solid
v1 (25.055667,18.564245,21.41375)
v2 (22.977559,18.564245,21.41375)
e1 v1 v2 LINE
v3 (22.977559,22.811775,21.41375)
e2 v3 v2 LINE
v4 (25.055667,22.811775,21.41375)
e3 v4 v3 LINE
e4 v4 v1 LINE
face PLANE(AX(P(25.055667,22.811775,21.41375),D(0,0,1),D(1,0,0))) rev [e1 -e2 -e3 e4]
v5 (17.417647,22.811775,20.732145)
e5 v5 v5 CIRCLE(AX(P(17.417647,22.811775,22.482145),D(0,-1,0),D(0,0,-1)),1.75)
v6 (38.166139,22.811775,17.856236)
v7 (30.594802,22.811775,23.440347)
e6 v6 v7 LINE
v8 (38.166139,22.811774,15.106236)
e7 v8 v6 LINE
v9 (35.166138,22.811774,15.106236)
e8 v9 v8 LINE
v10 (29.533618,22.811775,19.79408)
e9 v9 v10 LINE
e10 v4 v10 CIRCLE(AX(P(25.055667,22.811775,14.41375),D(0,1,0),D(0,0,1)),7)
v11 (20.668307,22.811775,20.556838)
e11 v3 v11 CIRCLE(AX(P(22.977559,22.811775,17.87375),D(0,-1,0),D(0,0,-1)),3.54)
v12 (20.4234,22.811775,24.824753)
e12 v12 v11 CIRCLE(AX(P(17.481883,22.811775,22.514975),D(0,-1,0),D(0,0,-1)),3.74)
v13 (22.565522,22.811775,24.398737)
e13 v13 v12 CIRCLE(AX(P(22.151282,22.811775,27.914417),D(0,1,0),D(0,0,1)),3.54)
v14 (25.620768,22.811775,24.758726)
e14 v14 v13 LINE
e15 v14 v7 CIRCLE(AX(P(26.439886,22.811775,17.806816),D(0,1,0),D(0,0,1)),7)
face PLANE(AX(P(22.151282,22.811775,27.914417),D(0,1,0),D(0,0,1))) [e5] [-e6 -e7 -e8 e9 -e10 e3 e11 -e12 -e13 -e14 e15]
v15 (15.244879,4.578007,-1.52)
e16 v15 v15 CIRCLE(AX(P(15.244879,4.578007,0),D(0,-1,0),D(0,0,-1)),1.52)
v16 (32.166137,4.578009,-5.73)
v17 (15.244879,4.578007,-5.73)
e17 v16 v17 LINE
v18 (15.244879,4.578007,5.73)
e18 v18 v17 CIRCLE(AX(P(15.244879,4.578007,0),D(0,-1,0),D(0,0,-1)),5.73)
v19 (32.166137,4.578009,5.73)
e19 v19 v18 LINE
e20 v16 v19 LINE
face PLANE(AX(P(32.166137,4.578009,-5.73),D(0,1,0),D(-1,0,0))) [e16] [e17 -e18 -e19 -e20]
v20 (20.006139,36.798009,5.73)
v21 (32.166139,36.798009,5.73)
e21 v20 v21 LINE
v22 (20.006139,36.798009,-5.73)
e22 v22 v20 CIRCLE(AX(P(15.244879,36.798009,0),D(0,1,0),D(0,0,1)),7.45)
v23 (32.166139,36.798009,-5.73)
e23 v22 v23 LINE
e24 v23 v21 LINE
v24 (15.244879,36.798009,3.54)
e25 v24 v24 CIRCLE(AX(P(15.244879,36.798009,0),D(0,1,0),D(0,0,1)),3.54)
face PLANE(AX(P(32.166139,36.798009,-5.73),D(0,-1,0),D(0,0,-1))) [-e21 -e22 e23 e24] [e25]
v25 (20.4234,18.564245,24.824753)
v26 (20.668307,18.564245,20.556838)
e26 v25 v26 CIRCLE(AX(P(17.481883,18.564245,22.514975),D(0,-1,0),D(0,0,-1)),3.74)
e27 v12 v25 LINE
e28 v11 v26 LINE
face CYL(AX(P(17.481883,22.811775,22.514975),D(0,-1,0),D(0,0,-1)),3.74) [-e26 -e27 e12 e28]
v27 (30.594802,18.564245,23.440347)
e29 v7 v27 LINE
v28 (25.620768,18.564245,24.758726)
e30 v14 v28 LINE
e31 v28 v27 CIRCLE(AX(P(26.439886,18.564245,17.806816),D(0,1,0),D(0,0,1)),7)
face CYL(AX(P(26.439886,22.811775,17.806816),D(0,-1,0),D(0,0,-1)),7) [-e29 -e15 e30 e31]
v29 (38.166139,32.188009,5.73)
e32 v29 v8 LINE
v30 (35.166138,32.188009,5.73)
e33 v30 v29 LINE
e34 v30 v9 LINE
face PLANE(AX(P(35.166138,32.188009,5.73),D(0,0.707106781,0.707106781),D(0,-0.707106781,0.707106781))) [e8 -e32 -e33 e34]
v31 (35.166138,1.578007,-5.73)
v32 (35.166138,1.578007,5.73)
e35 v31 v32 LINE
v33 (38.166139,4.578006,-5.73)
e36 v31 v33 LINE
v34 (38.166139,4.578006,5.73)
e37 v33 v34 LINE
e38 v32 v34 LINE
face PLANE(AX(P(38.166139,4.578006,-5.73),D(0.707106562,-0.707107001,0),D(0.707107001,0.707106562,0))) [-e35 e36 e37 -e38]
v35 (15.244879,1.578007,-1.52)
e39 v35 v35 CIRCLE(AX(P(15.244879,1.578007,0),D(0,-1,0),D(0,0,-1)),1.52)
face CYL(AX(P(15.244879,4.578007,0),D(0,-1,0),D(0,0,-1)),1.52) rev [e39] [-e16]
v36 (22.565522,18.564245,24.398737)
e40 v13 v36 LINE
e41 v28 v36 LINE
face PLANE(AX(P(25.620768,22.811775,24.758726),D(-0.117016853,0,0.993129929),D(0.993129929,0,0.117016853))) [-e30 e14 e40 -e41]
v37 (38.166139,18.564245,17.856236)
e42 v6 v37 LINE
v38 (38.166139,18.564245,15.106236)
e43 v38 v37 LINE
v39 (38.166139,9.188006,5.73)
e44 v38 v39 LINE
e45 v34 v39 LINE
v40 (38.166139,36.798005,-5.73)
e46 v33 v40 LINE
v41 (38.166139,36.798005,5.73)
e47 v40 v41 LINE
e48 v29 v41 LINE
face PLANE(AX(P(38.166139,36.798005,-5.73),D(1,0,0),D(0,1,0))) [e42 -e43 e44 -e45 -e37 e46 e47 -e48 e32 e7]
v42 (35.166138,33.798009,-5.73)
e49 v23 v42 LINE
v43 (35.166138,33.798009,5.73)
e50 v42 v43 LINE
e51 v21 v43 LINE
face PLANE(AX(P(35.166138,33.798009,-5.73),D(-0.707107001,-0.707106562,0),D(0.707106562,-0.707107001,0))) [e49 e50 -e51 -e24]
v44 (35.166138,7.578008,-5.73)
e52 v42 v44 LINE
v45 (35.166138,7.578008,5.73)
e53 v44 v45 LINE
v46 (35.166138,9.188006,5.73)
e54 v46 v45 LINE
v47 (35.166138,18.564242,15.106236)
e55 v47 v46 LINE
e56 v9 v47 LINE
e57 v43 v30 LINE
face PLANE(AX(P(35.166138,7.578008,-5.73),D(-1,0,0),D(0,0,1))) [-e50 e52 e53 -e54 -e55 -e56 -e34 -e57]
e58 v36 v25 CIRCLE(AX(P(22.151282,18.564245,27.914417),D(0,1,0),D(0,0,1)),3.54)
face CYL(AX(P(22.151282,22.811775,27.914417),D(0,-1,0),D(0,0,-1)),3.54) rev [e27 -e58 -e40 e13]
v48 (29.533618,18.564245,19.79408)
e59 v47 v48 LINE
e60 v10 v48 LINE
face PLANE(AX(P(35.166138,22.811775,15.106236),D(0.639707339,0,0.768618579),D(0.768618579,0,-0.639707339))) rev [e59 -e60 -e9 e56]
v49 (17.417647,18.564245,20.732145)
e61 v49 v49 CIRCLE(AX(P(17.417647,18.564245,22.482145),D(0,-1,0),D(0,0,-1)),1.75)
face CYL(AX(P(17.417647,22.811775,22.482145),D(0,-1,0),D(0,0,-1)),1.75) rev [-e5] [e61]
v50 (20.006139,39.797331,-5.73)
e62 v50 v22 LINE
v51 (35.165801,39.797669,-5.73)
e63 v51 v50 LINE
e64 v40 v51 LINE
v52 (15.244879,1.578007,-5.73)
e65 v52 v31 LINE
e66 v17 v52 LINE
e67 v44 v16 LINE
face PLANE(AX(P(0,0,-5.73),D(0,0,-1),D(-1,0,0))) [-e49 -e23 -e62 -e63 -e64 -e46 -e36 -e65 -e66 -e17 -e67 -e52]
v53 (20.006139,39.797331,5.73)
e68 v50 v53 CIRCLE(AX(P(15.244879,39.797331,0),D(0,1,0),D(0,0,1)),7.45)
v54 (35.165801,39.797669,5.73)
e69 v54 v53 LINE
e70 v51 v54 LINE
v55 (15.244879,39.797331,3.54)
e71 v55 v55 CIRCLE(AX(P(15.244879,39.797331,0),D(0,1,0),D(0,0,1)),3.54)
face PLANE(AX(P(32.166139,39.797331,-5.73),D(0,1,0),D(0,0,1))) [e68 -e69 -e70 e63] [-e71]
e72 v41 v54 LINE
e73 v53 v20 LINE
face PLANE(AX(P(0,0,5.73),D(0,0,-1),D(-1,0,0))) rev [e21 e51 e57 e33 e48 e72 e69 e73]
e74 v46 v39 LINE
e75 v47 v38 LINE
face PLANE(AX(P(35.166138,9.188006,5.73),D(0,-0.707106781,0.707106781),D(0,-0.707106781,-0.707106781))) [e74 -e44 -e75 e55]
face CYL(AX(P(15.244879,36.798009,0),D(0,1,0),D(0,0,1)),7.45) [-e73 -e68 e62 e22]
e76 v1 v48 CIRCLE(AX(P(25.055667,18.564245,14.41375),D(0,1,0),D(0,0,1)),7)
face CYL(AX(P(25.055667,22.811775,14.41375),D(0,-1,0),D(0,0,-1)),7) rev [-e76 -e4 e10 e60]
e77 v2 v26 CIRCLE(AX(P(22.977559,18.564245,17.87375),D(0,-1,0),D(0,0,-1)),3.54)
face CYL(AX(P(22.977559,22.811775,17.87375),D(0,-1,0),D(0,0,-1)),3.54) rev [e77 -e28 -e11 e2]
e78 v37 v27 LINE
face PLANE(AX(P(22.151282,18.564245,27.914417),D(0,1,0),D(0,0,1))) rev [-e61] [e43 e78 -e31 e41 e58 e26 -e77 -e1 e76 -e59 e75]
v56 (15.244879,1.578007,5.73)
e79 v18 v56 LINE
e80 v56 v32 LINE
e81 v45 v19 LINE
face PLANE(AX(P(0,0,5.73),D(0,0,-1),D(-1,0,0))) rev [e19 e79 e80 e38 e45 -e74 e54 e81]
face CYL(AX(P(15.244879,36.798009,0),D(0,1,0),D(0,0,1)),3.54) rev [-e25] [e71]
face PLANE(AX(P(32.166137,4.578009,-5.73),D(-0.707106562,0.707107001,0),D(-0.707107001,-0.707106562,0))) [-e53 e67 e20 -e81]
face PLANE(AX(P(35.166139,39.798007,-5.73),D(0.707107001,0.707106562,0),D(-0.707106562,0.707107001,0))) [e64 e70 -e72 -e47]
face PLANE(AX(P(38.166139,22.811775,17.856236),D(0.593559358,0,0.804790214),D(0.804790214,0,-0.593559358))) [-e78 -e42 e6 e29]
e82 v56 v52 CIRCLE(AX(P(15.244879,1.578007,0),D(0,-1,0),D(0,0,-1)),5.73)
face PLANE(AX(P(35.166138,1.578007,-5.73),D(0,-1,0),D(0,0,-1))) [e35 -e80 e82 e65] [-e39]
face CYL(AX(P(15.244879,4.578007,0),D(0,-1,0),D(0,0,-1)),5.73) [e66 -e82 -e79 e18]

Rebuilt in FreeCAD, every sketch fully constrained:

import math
import FreeCAD as App
import Part
import Sketcher

V = App.Vector
Q = App.Units.Quantity


def add_polygon(sketch, points):
    """Adds a closed chain of lines whose ends are joined by coincident constraints."""
    first, n = sketch.GeometryCount, len(points)
    for a, b in zip(points, points[1:] + points[:1]):
        sketch.addGeometry(Part.LineSegment(App.Vector(*a, 0), App.Vector(*b, 0)), False)
    for i in range(n):
        sketch.addConstraint(Sketcher.Constraint("Coincident", first + i, 2, first + (i + 1) % n, 1))

doc = App.newDocument("Part")
params = doc.addObject("Spreadsheet::Sheet", "Params")
for row, (alias, value) in enumerate([
    ("sketch1_height", "26.220001 mm"),
    ("pad1_length", "5.73 mm"),
    ("pad1_length2", "5.73 mm"),
    ("sketch2_width", "12.16 mm"),
    ("pad2_length", "11.46 mm"),
    ("sketch3_width", "12.16 mm"),
    ("pad3_length", "11.46 mm"),
    ("sketch4_radius", "7.45 mm"),
    ("sketch4_height", "11.46 mm"),
    ("pad4_length", "2.999321 mm"),
    ("sketch5_diameter", "7.08 mm"),
    ("pocket1_length", "2.999322 mm"),
    ("sketch6_radius", "5.73 mm"),
    ("pad5_length", "3 mm"),
    ("sketch7_diameter", "3.04 mm"),
    ("pocket2_length", "3 mm"),
    ("sketch8_length", "13.26 mm"),
    ("pad6_length", "3.000001 mm"),
    ("sketch9_radius", "7 mm"),
    ("sketch9_width", "3.000001 mm"),
    ("sketch9_radius2", "3.54 mm"),
    ("sketch9_radius3", "3.74 mm"),
    ("sketch9_height", "2.75 mm"),
    ("pad7_length", "4.24753 mm"),
    ("sketch10_diameter", "3.5 mm"),
    ("pocket3_length", "4.24753 mm"),
], start=1):
    params.set(f"A{row}", alias)
    params.set(f"B{row}", "=" + value)
    params.setAlias(f"B{row}", alias)

body = doc.addObject("PartDesign::Body", "Body")

sketch1 = body.newObject("Sketcher::SketchObject", "Sketch")
sketch1.AttachmentSupport = (doc.getObject("XY_Plane"), [""])
sketch1.MapMode = "FlatFace"
add_polygon(sketch1, [(35.2, 39.8), (32.2, 36.8), (35.2, 33.8), (35.2, 7.6), (32.2, 4.6), (35.2, 1.6), (38.2, 4.6), (38.2, 36.8)])
sketch1.addConstraint(Sketcher.Constraint("Vertical", 2))
sketch1.addConstraint(Sketcher.Constraint("Vertical", 6))
sketch1.addConstraint(Sketcher.Constraint("Perpendicular", 0, 1))
sketch1.addConstraint(Sketcher.Constraint("Perpendicular", 1, 3))
sketch1.addConstraint(Sketcher.Constraint("Perpendicular", 3, 4))
sketch1.addConstraint(Sketcher.Constraint("Perpendicular", 4, 5))
sketch1.addConstraint(Sketcher.Constraint("Perpendicular", 5, 7))
sketch1.addConstraint(Sketcher.Constraint("Vertical", 0, 2, 3, 2))
sketch1.addConstraint(Sketcher.Constraint("Vertical", 2, 2, 4, 2))
sketch1.addConstraint(Sketcher.Constraint("Vertical", 4, 2, 7, 2))
sketch1.addConstraint(Sketcher.Constraint("Equal", 0, 1))
sketch1.addConstraint(Sketcher.Constraint("Equal", 4, 5))
sketch1.addConstraint(Sketcher.Constraint("DistanceX", 0, 2, 1, 2, Q("2.999999 mm")))
sketch1.addConstraint(Sketcher.Constraint("DistanceY", 2, 2, 2, 1, Q("26.220001 mm")))
sketch1.addConstraint(Sketcher.Constraint("DistanceX", -1, 1, 0, 2, Q("32.166139 mm")))
sketch1.addConstraint(Sketcher.Constraint("DistanceY", -1, 1, 0, 2, Q("36.798009 mm")))
sketch1.setExpression("Constraints[21]", "Params.sketch1_height")
pad1 = body.newObject("PartDesign::Pad", "Pad")
pad1.Profile = sketch1
pad1.Type = "TwoLengths"
pad1.setExpression("Length", "Params.pad1_length")
pad1.setExpression("Length2", "Params.pad1_length2")

sketch2 = body.newObject("Sketcher::SketchObject", "Sketch001")
sketch2.AttachmentSupport = (doc.getObject("XY_Plane"), [""])
sketch2.MapMode = "FlatFace"
sketch2.AttachmentOffset = App.Placement(V(0, 0, 5.73), App.Rotation())
add_polygon(sketch2, [(20, 36.8), (32.2, 36.8), (35.2, 39.8), (20, 39.8)])
sketch2.addConstraint(Sketcher.Constraint("Horizontal", 0))
sketch2.addConstraint(Sketcher.Constraint("Horizontal", 2))
sketch2.addConstraint(Sketcher.Constraint("Vertical", 3))
sketch2.addConstraint(Sketcher.Constraint("Angle", 1, Q("44.999982 deg")))
sketch2.addConstraint(Sketcher.Constraint("DistanceX", 0, 1, 0, 2, Q("12.16 mm")))
sketch2.addConstraint(Sketcher.Constraint("DistanceY", 3, 2, 3, 1, Q("2.999322 mm")))
sketch2.addConstraint(Sketcher.Constraint("DistanceX", -1, 1, 0, 2, Q("32.166139 mm")))
sketch2.addConstraint(Sketcher.Constraint("DistanceY", -1, 1, 0, 2, Q("36.798009 mm")))
sketch2.setExpression("Constraints[8]", "Params.sketch2_width")
pad2 = body.newObject("PartDesign::Pad", "Pad001")
pad2.Profile = sketch2
pad2.setExpression("Length", "Params.pad2_length")
pad2.Reversed = True

sketch3 = body.newObject("Sketcher::SketchObject", "Sketch002")
sketch3.AttachmentSupport = (doc.getObject("XY_Plane"), [""])
sketch3.MapMode = "FlatFace"
sketch3.AttachmentOffset = App.Placement(V(0, 0, 5.73), App.Rotation())
add_polygon(sketch3, [(35.2, 1.6), (32.2, 4.6), (20, 4.6), (20, 1.6)])
sketch3.addConstraint(Sketcher.Constraint("Horizontal", 1))
sketch3.addConstraint(Sketcher.Constraint("Vertical", 2))
sketch3.addConstraint(Sketcher.Constraint("Horizontal", 3))
sketch3.addConstraint(Sketcher.Constraint("Angle", 0, Q("134.999982 deg")))
sketch3.addConstraint(Sketcher.Constraint("DistanceX", 0, 2, 3, 2, Q("3 mm")))
sketch3.addConstraint(Sketcher.Constraint("DistanceX", 1, 2, 1, 1, Q("12.16 mm")))
sketch3.addConstraint(Sketcher.Constraint("DistanceY", -1, 1, 0, 2, Q("4.578009 mm")))
sketch3.addConstraint(Sketcher.Constraint("DistanceX", -1, 1, 0, 2, Q("32.166137 mm")))
sketch3.setExpression("Constraints[9]", "Params.sketch3_width")
pad3 = body.newObject("PartDesign::Pad", "Pad002")
pad3.Profile = sketch3
pad3.setExpression("Length", "Params.pad3_length")
pad3.Reversed = True

sketch4 = body.newObject("Sketcher::SketchObject", "Sketch003")
sketch4.AttachmentSupport = (doc.getObject("XZ_Plane"), [""])
sketch4.MapMode = "FlatFace"
sketch4.AttachmentOffset = App.Placement(V(0, 0, -39.797331), App.Rotation())
sketch4.addGeometry(Part.LineSegment(V(20, 6, 0), V(20, -6, 0)), False)
sketch4.addGeometry(Part.ArcOfCircle(Part.Circle(V(15, 0, 0), V(0, 0, 1), 7), math.radians(50), math.radians(310)), False)
sketch4.addConstraint(Sketcher.Constraint("Coincident", 0, 1, 1, 1))
sketch4.addConstraint(Sketcher.Constraint("Coincident", 1, 2, 0, 2))
sketch4.addConstraint(Sketcher.Constraint("Vertical", 0))
sketch4.addConstraint(Sketcher.Constraint("PointOnObject", 1, 3, -1))
sketch4.addConstraint(Sketcher.Constraint("Radius", 1, Q("7.45 mm")))
sketch4.addConstraint(Sketcher.Constraint("DistanceY", 0, 2, 0, 1, Q("11.46 mm")))
sketch4.addConstraint(Sketcher.Constraint("DistanceX", -1, 1, 1, 3, Q("15.244879 mm")))
sketch4.setExpression("Constraints[4]", "Params.sketch4_radius")
sketch4.setExpression("Constraints[5]", "Params.sketch4_height")
pad4 = body.newObject("PartDesign::Pad", "Pad003")
pad4.Profile = sketch4
pad4.setExpression("Length", "Params.pad4_length")

sketch5 = body.newObject("Sketcher::SketchObject", "Sketch004")
sketch5.AttachmentSupport = (doc.getObject("XZ_Plane"), [""])
sketch5.MapMode = "FlatFace"
sketch5.AttachmentOffset = App.Placement(V(0, 0, -39.797331), App.Rotation())
sketch5.addGeometry(Part.Circle(V(15.2, 0, 0), V(0, 0, 1), 3.5), False)
sketch5.addConstraint(Sketcher.Constraint("PointOnObject", 0, 3, -1))
sketch5.addConstraint(Sketcher.Constraint("Diameter", 0, Q("7.08 mm")))
sketch5.addConstraint(Sketcher.Constraint("DistanceX", -1, 1, 0, 3, Q("15.244879 mm")))
sketch5.setExpression("Constraints[1]", "Params.sketch5_diameter")
pocket1 = body.newObject("PartDesign::Pocket", "Pocket")
pocket1.Profile = sketch5
pocket1.setExpression("Length", "Params.pocket1_length")
pocket1.Reversed = True

sketch6 = body.newObject("Sketcher::SketchObject", "Sketch005")
sketch6.AttachmentSupport = (doc.getObject("XZ_Plane"), [""])
sketch6.MapMode = "FlatFace"
sketch6.AttachmentOffset = App.Placement(V(0, 0, -1.578007), App.Rotation())
sketch6.addGeometry(Part.LineSegment(V(20, 5.7, 0), V(15.2, 5.7, 0)), False)
sketch6.addGeometry(Part.ArcOfCircle(Part.Circle(V(15.2, 0, 0), V(0, 0, 1), 5.7), math.radians(90), math.radians(270)), False)
sketch6.addGeometry(Part.LineSegment(V(15.2, -5.7, 0), V(20, -5.7, 0)), False)
sketch6.addGeometry(Part.LineSegment(V(20, -5.7, 0), V(20, 5.7, 0)), False)
sketch6.addConstraint(Sketcher.Constraint("Tangent", 0, 2, 1, 1))
sketch6.addConstraint(Sketcher.Constraint("Tangent", 1, 2, 2, 1))
sketch6.addConstraint(Sketcher.Constraint("Coincident", 2, 2, 3, 1))
sketch6.addConstraint(Sketcher.Constraint("Coincident", 3, 2, 0, 1))
sketch6.addConstraint(Sketcher.Constraint("Horizontal", 0))
sketch6.addConstraint(Sketcher.Constraint("Horizontal", 2))
sketch6.addConstraint(Sketcher.Constraint("Vertical", 3))
sketch6.addConstraint(Sketcher.Constraint("PointOnObject", 1, 3, -1))
sketch6.addConstraint(Sketcher.Constraint("Radius", 1, Q("5.73 mm")))
sketch6.addConstraint(Sketcher.Constraint("DistanceX", 0, 2, 0, 1, Q("4.76126 mm")))
sketch6.addConstraint(Sketcher.Constraint("DistanceX", -1, 1, 1, 3, Q("15.244879 mm")))
sketch6.setExpression("Constraints[8]", "Params.sketch6_radius")
pad5 = body.newObject("PartDesign::Pad", "Pad004")
pad5.Profile = sketch6
pad5.setExpression("Length", "Params.pad5_length")
pad5.Reversed = True

sketch7 = body.newObject("Sketcher::SketchObject", "Sketch006")
sketch7.AttachmentSupport = (doc.getObject("XZ_Plane"), [""])
sketch7.MapMode = "FlatFace"
sketch7.AttachmentOffset = App.Placement(V(0, 0, -1.578007), App.Rotation())
sketch7.addGeometry(Part.Circle(V(15.2, 0, 0), V(0, 0, 1), 1.5), False)
sketch7.addConstraint(Sketcher.Constraint("PointOnObject", 0, 3, -1))
sketch7.addConstraint(Sketcher.Constraint("Diameter", 0, Q("3.04 mm")))
sketch7.addConstraint(Sketcher.Constraint("DistanceX", -1, 1, 0, 3, Q("15.244879 mm")))
sketch7.setExpression("Constraints[1]", "Params.sketch7_diameter")
pocket2 = body.newObject("PartDesign::Pocket", "Pocket001")
pocket2.Profile = sketch7
pocket2.setExpression("Length", "Params.pocket2_length")

sketch8 = body.newObject("Sketcher::SketchObject", "Sketch007")
sketch8.AttachmentSupport = (doc.getObject("YZ_Plane"), [""])
sketch8.MapMode = "FlatFace"
sketch8.AttachmentOffset = App.Placement(V(0, 0, 38.166139), App.Rotation())
add_polygon(sketch8, [(9.2, 5.7), (32.2, 5.7), (22.8, 15.1), (18.6, 15.1)])
sketch8.addConstraint(Sketcher.Constraint("Horizontal", 0))
sketch8.addConstraint(Sketcher.Constraint("Horizontal", 2))
sketch8.addConstraint(Sketcher.Constraint("Perpendicular", 1, 3))
sketch8.addConstraint(Sketcher.Constraint("Equal", 1, 3))
sketch8.addConstraint(Sketcher.Constraint("Distance", 1, Q("13.26 mm")))
sketch8.addConstraint(Sketcher.Constraint("DistanceY", -1, 1, 0, 2, Q("5.73 mm")))
sketch8.addConstraint(Sketcher.Constraint("DistanceX", 2, 2, 2, 1, Q("4.247531 mm")))
sketch8.addConstraint(Sketcher.Constraint("DistanceX", -1, 1, 0, 2, Q("32.188009 mm")))
sketch8.setExpression("Constraints[8]", "Params.sketch8_length")
pad6 = body.newObject("PartDesign::Pad", "Pad005")
pad6.Profile = sketch8
pad6.setExpression("Length", "Params.pad6_length")
pad6.Reversed = True

sketch9 = body.newObject("Sketcher::SketchObject", "Sketch008")
sketch9.AttachmentSupport = (doc.getObject("XZ_Plane"), [""])
sketch9.MapMode = "FlatFace"
sketch9.AttachmentOffset = App.Placement(V(0, 0, -18.564245), App.Rotation())
sketch9.addGeometry(Part.LineSegment(V(38.2, 15.1, 0), V(38.2, 17.9, 0)), False)
sketch9.addGeometry(Part.LineSegment(V(38.2, 17.9, 0), V(30.6, 23.4, 0)), False)
sketch9.addGeometry(Part.ArcOfCircle(Part.Circle(V(26.4, 17.8, 0), V(0, 0, 1), 7), math.radians(54), math.radians(97)), False)
sketch9.addGeometry(Part.LineSegment(V(25.6, 24.8, 0), V(22.6, 24.4, 0)), False)
sketch9.addGeometry(Part.ArcOfCircle(Part.Circle(V(22.2, 27.9, 0), V(0, 0, 1), 3.5), math.radians(-119), math.radians(-83)), False)
sketch9.addGeometry(Part.ArcOfCircle(Part.Circle(V(17.5, 22.5, 0), V(0, 0, 1), 3.7), math.radians(38), math.radians(328)), False)
sketch9.addGeometry(Part.ArcOfCircle(Part.Circle(V(23, 17.9, 0), V(0, 0, 1), 3.5), math.radians(90), math.radians(131)), False)
sketch9.addGeometry(Part.LineSegment(V(23, 21.4, 0), V(25.1, 21.4, 0)), False)
sketch9.addGeometry(Part.ArcOfCircle(Part.Circle(V(25.1, 14.4, 0), V(0, 0, 1), 7), math.radians(50), math.radians(90)), False)
sketch9.addGeometry(Part.LineSegment(V(29.5, 19.8, 0), V(35.2, 15.1, 0)), False)
sketch9.addGeometry(Part.LineSegment(V(35.2, 15.1, 0), V(38.2, 15.1, 0)), False)
sketch9.addConstraint(Sketcher.Constraint("Coincident", 0, 2, 1, 1))
sketch9.addConstraint(Sketcher.Constraint("Tangent", 1, 2, 2, 1))
sketch9.addConstraint(Sketcher.Constraint("Tangent", 2, 2, 3, 1))
sketch9.addConstraint(Sketcher.Constraint("Tangent", 3, 2, 4, 2))
sketch9.addConstraint(Sketcher.Constraint("Coincident", 4, 1, 5, 1))
sketch9.addConstraint(Sketcher.Constraint("Coincident", 5, 2, 6, 2))
sketch9.addConstraint(Sketcher.Constraint("Tangent", 6, 1, 7, 1))
sketch9.addConstraint(Sketcher.Constraint("Tangent", 7, 2, 8, 2))
sketch9.addConstraint(Sketcher.Constraint("Tangent", 8, 1, 9, 1))
sketch9.addConstraint(Sketcher.Constraint("Coincident", 9, 2, 10, 1))
sketch9.addConstraint(Sketcher.Constraint("Coincident", 10, 2, 0, 1))
sketch9.addConstraint(Sketcher.Constraint("Vertical", 0))
sketch9.addConstraint(Sketcher.Constraint("Horizontal", 7))
sketch9.addConstraint(Sketcher.Constraint("Horizontal", 10))
sketch9.addConstraint(Sketcher.Constraint("Equal", 4, 6))
sketch9.addConstraint(Sketcher.Constraint("Equal", 2, 8))
sketch9.addConstraint(Sketcher.Constraint("Radius", 2, Q("7 mm")))
sketch9.addConstraint(Sketcher.Constraint("DistanceX", 10, 1, 10, 2, Q("3.000001 mm")))
sketch9.addConstraint(Sketcher.Constraint("Radius", 4, Q("3.54 mm")))
sketch9.addConstraint(Sketcher.Constraint("Radius", 5, Q("3.74 mm")))
sketch9.addConstraint(Sketcher.Constraint("DistanceY", 0, 1, 0, 2, Q("2.75 mm")))
sketch9.addConstraint(Sketcher.Constraint("Angle", 1, Q("143.59 deg")))
sketch9.addConstraint(Sketcher.Constraint("Angle", 9, Q("-39.77 deg")))
sketch9.addConstraint(Sketcher.Constraint("DistanceX", -1, 1, 1, 2, Q("30.594802 mm")))
sketch9.addConstraint(Sketcher.Constraint("DistanceX", -1, 1, 4, 1, Q("20.4234 mm")))
sketch9.addConstraint(Sketcher.Constraint("DistanceY", 2, 3, 4, 3, Q("10.107601 mm")))
sketch9.addConstraint(Sketcher.Constraint("DistanceX", 5, 3, 4, 3, Q("4.669399 mm")))
sketch9.addConstraint(Sketcher.Constraint("DistanceY", 5, 2, 3, 2, Q("3.841899 mm")))
sketch9.addConstraint(Sketcher.Constraint("DistanceX", 7, 2, 2, 2, Q("0.565102 mm")))
sketch9.addConstraint(Sketcher.Constraint("Distance", 1, Q("9.40784 mm")))
sketch9.addConstraint(Sketcher.Constraint("Distance", 3, Q("3.076381 mm")))
sketch9.addConstraint(Sketcher.Constraint("DistanceY", -1, 1, 6, 3, Q("17.87375 mm")))
sketch9.setExpression("Constraints[16]", "Params.sketch9_radius")
sketch9.setExpression("Constraints[17]", "Params.sketch9_width")
sketch9.setExpression("Constraints[18]", "Params.sketch9_radius2")
sketch9.setExpression("Constraints[19]", "Params.sketch9_radius3")
sketch9.setExpression("Constraints[20]", "Params.sketch9_height")
pad7 = body.newObject("PartDesign::Pad", "Pad006")
pad7.Profile = sketch9
pad7.setExpression("Length", "Params.pad7_length")
pad7.Reversed = True

sketch10 = body.newObject("Sketcher::SketchObject", "Sketch009")
sketch10.AttachmentSupport = (doc.getObject("XZ_Plane"), [""])
sketch10.MapMode = "FlatFace"
sketch10.AttachmentOffset = App.Placement(V(0, 0, -18.564245), App.Rotation())
sketch10.addGeometry(Part.Circle(V(17.4, 22.5, 0), V(0, 0, 1), 1.8), False)
sketch10.addConstraint(Sketcher.Constraint("Diameter", 0, Q("3.5 mm")))
sketch10.addConstraint(Sketcher.Constraint("DistanceX", -1, 1, 0, 3, Q("17.417647 mm")))
sketch10.addConstraint(Sketcher.Constraint("DistanceY", -1, 1, 0, 3, Q("22.482145 mm")))
sketch10.setExpression("Constraints[0]", "Params.sketch10_diameter")
pocket3 = body.newObject("PartDesign::Pocket", "Pocket002")
pocket3.Profile = sketch10
pocket3.setExpression("Length", "Params.pocket3_length")

doc.recompute()
